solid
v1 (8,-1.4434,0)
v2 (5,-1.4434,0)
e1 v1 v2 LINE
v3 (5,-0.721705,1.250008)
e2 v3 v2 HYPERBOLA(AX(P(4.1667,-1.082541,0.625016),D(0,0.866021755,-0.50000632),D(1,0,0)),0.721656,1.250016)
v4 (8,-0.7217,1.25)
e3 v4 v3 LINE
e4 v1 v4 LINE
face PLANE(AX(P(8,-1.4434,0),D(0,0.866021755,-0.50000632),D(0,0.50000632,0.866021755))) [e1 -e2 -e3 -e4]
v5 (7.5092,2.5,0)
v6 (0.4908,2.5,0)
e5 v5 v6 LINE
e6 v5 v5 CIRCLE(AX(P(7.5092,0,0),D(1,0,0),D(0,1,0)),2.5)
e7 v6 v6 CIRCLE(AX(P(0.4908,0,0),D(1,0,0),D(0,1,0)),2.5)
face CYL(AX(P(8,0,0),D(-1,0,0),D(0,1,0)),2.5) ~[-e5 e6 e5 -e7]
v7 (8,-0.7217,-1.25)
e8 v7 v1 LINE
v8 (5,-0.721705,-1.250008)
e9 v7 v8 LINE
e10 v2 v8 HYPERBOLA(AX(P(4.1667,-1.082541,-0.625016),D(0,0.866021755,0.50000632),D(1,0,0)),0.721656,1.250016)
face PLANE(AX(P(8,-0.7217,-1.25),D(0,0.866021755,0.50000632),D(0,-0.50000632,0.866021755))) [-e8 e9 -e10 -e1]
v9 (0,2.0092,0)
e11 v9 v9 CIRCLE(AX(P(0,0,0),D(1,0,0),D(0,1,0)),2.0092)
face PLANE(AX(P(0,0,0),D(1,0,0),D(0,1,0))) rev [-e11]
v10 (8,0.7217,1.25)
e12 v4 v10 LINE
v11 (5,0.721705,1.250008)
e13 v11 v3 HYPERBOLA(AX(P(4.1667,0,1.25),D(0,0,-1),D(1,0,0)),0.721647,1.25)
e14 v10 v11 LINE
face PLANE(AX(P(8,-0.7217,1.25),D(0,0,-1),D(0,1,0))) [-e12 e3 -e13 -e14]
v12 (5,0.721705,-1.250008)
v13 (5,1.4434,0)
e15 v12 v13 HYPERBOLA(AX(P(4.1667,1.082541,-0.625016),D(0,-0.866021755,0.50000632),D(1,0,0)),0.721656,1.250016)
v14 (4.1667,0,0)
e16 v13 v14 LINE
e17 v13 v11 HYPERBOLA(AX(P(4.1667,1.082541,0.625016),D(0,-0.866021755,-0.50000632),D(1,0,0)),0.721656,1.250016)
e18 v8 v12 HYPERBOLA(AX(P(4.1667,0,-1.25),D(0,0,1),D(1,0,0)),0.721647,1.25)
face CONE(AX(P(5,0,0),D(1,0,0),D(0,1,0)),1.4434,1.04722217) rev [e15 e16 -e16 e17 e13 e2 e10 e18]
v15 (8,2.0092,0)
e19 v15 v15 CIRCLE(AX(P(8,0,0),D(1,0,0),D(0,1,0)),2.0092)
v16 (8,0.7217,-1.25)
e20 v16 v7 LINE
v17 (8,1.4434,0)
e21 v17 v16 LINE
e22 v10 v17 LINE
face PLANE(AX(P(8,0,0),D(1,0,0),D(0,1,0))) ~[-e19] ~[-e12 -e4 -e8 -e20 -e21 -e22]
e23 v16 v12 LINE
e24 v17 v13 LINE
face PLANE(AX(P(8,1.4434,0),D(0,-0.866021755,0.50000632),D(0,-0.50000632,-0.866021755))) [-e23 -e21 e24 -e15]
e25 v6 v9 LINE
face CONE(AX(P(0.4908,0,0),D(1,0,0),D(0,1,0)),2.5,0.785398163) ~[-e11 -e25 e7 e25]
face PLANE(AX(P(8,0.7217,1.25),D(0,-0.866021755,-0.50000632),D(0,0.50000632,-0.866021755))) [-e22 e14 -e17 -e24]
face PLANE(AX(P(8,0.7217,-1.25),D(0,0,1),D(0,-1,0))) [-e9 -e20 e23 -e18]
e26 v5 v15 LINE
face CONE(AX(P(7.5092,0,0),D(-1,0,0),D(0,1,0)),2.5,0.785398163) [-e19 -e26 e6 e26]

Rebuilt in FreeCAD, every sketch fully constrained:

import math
import FreeCAD as App
import Part
import Sketcher
from FreeCAD import Vector
Q = App.Units.Quantity


def edges_at(feature, points):
    """Names of the edges that pass closest to the given points."""
    edges = feature.Shape.Edges
    near = lambda p: min(range(len(edges)), key=lambda i: edges[i].distToShape(Part.Vertex(*p))[0])
    return sorted({f"Edge{near(p) + 1}" for p in points})


def add_polygon(sketch, points):
    """Adds a closed chain of lines whose ends are joined by coincident constraints."""
    first, n = sketch.GeometryCount, len(points)
    for a, b in zip(points, points[1:] + points[:1]):
        sketch.addGeometry(Part.LineSegment(App.Vector(*a, 0), App.Vector(*b, 0)), False)
    for i in range(n):
        sketch.addConstraint(Sketcher.Constraint("Coincident", first + i, 2, first + (i + 1) % n, 1))

doc = App.newDocument("Part")
body = doc.addObject("PartDesign::Body", "Body")

sketch1 = body.newObject("Sketcher::SketchObject", "Sketch")
sketch1.AttachmentSupport = (doc.getObject("XY_Plane"), [""])
sketch1.MapMode = "FlatFace"
add_polygon(sketch1, [(0, 2.5), (0, 0), (4.2, 0), (5, 1.4), (8, 1.4), (8, 2.5)])
sketch1.addConstraint(Sketcher.Constraint("Vertical", 0))
sketch1.addConstraint(Sketcher.Constraint("Horizontal", 1))
sketch1.addConstraint(Sketcher.Constraint("Horizontal", 3))
sketch1.addConstraint(Sketcher.Constraint("Vertical", 4))
sketch1.addConstraint(Sketcher.Constraint("Horizontal", 5))
sketch1.addConstraint(Sketcher.Constraint("Coincident", 0, 2, -1, 1))
sketch1.addConstraint(Sketcher.Constraint("DistanceX", 3, 1, 3, 2, Q("3 mm")))
sketch1.addConstraint(Sketcher.Constraint("DistanceX", 5, 2, 5, 1, Q("8 mm")))
sketch1.addConstraint(Sketcher.Constraint("DistanceY", 0, 2, 0, 1, Q("2.5 mm")))
sketch1.addConstraint(Sketcher.Constraint("DistanceX", 1, 1, 1, 2, Q("4.1667 mm")))
sketch1.addConstraint(Sketcher.Constraint("DistanceY", 4, 1, 4, 2, Q("1.0566 mm")))
revolution = body.newObject("PartDesign::Revolution", "Revolution")
revolution.Profile = sketch1
revolution.ReferenceAxis = (sketch1, ["H_Axis"])
revolution.Angle = 360

sketch2 = body.newObject("Sketcher::SketchObject", "Sketch001")
sketch2.AttachmentSupport = (doc.getObject("YZ_Plane"), [""])
sketch2.MapMode = "FlatFace"
sketch2.AttachmentOffset = App.Placement(Vector(0, 0, 8), App.Rotation())
sketch2.addGeometry(Part.LineSegment(Vector(0.7, 1.2, 0), Vector(1.4, 0, 0)), False)
sketch2.addGeometry(Part.ArcOfCircle(Part.Circle(Vector(0, 0, 0), Vector(0, 0, 1), 1.4), math.radians(0), math.radians(60)), False)
sketch2.addGeometry(Part.ArcOfCircle(Part.Circle(Vector(0, 0, 0), Vector(0, 0, 1), 1.4), math.radians(-60), math.radians(0)), False)
sketch2.addGeometry(Part.LineSegment(Vector(1.4, 0, 0), Vector(0.7, -1.2, 0)), False)
sketch2.addGeometry(Part.LineSegment(Vector(-0.7, 1.2, 0), Vector(0.7, 1.2, 0)), False)
sketch2.addGeometry(Part.ArcOfCircle(Part.Circle(Vector(0, 0, 0), Vector(0, 0, 1), 1.4), math.radians(60), math.radians(120)), False)
sketch2.addGeometry(Part.ArcOfCircle(Part.Circle(Vector(0, 0, 0), Vector(0, 0, 1), 1.4), math.radians(-120), math.radians(-60)), False)
sketch2.addGeometry(Part.LineSegment(Vector(-0.7, -1.2, 0), Vector(0.7, -1.2, 0)), False)
sketch2.addGeometry(Part.LineSegment(Vector(-1.4, 0, 0), Vector(-0.7, 1.2, 0)), False)
sketch2.addGeometry(Part.ArcOfCircle(Part.Circle(Vector(0, 0, 0), Vector(0, 0, 1), 1.4), math.radians(120), math.radians(180)), False)
sketch2.addGeometry(Part.ArcOfCircle(Part.Circle(Vector(0, 0, 0), Vector(0, 0, 1), 1.4), math.radians(180), math.radians(240)), False)
sketch2.addGeometry(Part.LineSegment(Vector(-1.4, 0, 0), Vector(-0.7, -1.2, 0)), False)
sketch2.addConstraint(Sketcher.Constraint("Coincident", 0, 1, 1, 2))
sketch2.addConstraint(Sketcher.Constraint("Coincident", 1, 1, 0, 2))
sketch2.addConstraint(Sketcher.Constraint("Coincident", 2, 1, 3, 2))
sketch2.addConstraint(Sketcher.Constraint("Coincident", 3, 1, 2, 2))
sketch2.addConstraint(Sketcher.Constraint("Coincident", 4, 1, 5, 2))
sketch2.addConstraint(Sketcher.Constraint("Coincident", 5, 1, 4, 2))
sketch2.addConstraint(Sketcher.Constraint("Coincident", 6, 1, 7, 1))
sketch2.addConstraint(Sketcher.Constraint("Coincident", 7, 2, 6, 2))
sketch2.addConstraint(Sketcher.Constraint("Coincident", 8, 1, 9, 2))
sketch2.addConstraint(Sketcher.Constraint("Coincident", 9, 1, 8, 2))
sketch2.addConstraint(Sketcher.Constraint("Coincident", 10, 1, 11, 1))
sketch2.addConstraint(Sketcher.Constraint("Coincident", 11, 2, 10, 2))
sketch2.addConstraint(Sketcher.Constraint("Horizontal", 4))
sketch2.addConstraint(Sketcher.Constraint("Horizontal", 7))
sketch2.addConstraint(Sketcher.Constraint("Coincident", 1, 3, -1, 1))
sketch2.addConstraint(Sketcher.Constraint("Coincident", 2, 3, -1, 1))
sketch2.addConstraint(Sketcher.Constraint("Coincident", 5, 3, -1, 1))
sketch2.addConstraint(Sketcher.Constraint("Coincident", 6, 3, -1, 1))
sketch2.addConstraint(Sketcher.Constraint("Coincident", 9, 3, -1, 1))
sketch2.addConstraint(Sketcher.Constraint("Coincident", 10, 3, -1, 1))
sketch2.addConstraint(Sketcher.Constraint("Coincident", 3, 1, 1, 1))
sketch2.addConstraint(Sketcher.Constraint("Coincident", 5, 1, 0, 1))
sketch2.addConstraint(Sketcher.Constraint("Coincident", 7, 2, 2, 1))
sketch2.addConstraint(Sketcher.Constraint("Coincident", 9, 1, 4, 1))
sketch2.addConstraint(Sketcher.Constraint("Coincident", 10, 1, 8, 1))
sketch2.addConstraint(Sketcher.Constraint("PointOnObject", 1, 1, -1))
sketch2.addConstraint(Sketcher.Constraint("PointOnObject", 8, 1, -1))
sketch2.addConstraint(Sketcher.Constraint("Parallel", 3, 8))
sketch2.addConstraint(Sketcher.Constraint("Parallel", 0, 11))
sketch2.addConstraint(Sketcher.Constraint("Angle", 0, Q("-59.9996 deg")))
sketch2.addConstraint(Sketcher.Constraint("Radius", 1, Q("1.4434 mm")))
pad1 = body.newObject("PartDesign::Pad", "Pad")
pad1.Profile = sketch2
pad1.Type = "UpToFirst"
pad1.Reversed = True
doc.recompute()

chamfer = body.newObject("PartDesign::Chamfer", "Chamfer")
chamfer.Base = (pad1, edges_at(pad1, [(8, -2.5, 0)]))
chamfer.Size = 0.4908
doc.recompute()

chamfer2 = body.newObject("PartDesign::Chamfer", "Chamfer001")
chamfer2.Base = (chamfer, edges_at(chamfer, [(0, -2.5, 0)]))
chamfer2.Size = 0.4908

doc.recompute()
